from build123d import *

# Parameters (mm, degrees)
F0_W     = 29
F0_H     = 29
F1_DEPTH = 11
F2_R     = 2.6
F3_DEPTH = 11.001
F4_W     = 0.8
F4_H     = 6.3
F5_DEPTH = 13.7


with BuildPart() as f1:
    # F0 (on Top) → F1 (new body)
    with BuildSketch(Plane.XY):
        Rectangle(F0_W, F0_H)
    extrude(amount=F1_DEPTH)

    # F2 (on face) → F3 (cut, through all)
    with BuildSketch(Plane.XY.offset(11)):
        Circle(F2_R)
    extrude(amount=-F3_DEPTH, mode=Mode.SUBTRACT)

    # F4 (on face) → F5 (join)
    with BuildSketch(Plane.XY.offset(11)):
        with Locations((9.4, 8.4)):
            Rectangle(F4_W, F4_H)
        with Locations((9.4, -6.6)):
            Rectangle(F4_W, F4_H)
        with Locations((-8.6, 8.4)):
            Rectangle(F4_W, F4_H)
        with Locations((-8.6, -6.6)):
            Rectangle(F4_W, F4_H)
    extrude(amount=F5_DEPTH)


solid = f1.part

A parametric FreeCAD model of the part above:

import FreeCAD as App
import Part
import Sketcher
from FreeCAD import Vector

doc = App.newDocument("Part")
params = doc.addObject("Spreadsheet::Sheet", "Params")
for row, (alias, value) in enumerate([
    ("sketch1_width", "29 mm"),
    ("pad1_length", "11 mm"),
    ("sketch2_diameter", "5.2 mm"),
    ("sketch3_width", "0.8 mm"),
    ("sketch3_height", "6.3 mm"),
    ("pad2_length", "13.7 mm"),
], start=1):
    params.set(f"A{row}", alias)
    params.set(f"B{row}", "=" + value)
    params.setAlias(f"B{row}", alias)

body = doc.addObject("PartDesign::Body", "Body")

# Sketch on XY plane
sketch1 = body.newObject("Sketcher::SketchObject", "Sketch")
sketch1.AttachmentSupport = (doc.getObject("XY_Plane"), [""])
sketch1.MapMode = "FlatFace"
sketch1.addGeometry([
    Part.LineSegment(Vector(-14, 14, 0), Vector(-14, -14, 0)),
    Part.LineSegment(Vector(-14, -14, 0), Vector(14, -14, 0)),
    Part.LineSegment(Vector(14, -14, 0), Vector(14, 14, 0)),
    Part.LineSegment(Vector(14, 14, 0), Vector(-14, 14, 0)),
], False)
sketch1.addConstraint([
    Sketcher.Constraint("Coincident", 0, 2, 1, 1),
    Sketcher.Constraint("Coincident", 1, 2, 2, 1),
    Sketcher.Constraint("Coincident", 2, 2, 3, 1),
    Sketcher.Constraint("Coincident", 3, 2, 0, 1),
    Sketcher.Constraint("Vertical", 0),
    Sketcher.Constraint("Horizontal", 1),
    Sketcher.Constraint("Vertical", 2),
    Sketcher.Constraint("Horizontal", 3),
    Sketcher.Constraint("Symmetric", 0, 2, 2, 2, -1, 1),
    Sketcher.Constraint("Equal", 3, 0),
    Sketcher.Constraint("DistanceX", 1, 1, 1, 2, 29.0),
])
sketch1.setExpression("Constraints[10]", "Params.sketch1_width")
pad1 = body.newObject("PartDesign::Pad", "Pad")
pad1.Profile = sketch1
pad1.setExpression("Length", "Params.pad1_length")

# Sketch on XY plane
sketch2 = body.newObject("Sketcher::SketchObject", "Sketch001")
sketch2.AttachmentSupport = (doc.getObject("XY_Plane"), [""])
sketch2.MapMode = "FlatFace"
sketch2.AttachmentOffset = App.Placement(Vector(0, 0, 11), App.Rotation())
sketch2.addGeometry(Part.Circle(Vector(0, 0, 0), Vector(0, 0, 1), 2.6), False)
sketch2.addConstraint([
    Sketcher.Constraint("Coincident", 0, 3, -1, 1),
    Sketcher.Constraint("Diameter", 0, 5.2),
])
sketch2.setExpression("Constraints[1]", "Params.sketch2_diameter")
pocket1 = body.newObject("PartDesign::Pocket", "Pocket")
pocket1.Profile = sketch2
pocket1.Type = "ThroughAll"

# Sketch on XY plane
sketch3 = body.newObject("Sketcher::SketchObject", "Sketch002")
sketch3.AttachmentSupport = (doc.getObject("XY_Plane"), [""])
sketch3.MapMode = "FlatFace"
sketch3.AttachmentOffset = App.Placement(Vector(0, 0, 11), App.Rotation())
sketch3.addGeometry([
    Part.LineSegment(Vector(9, 11.6, 0), Vector(9, 5.2, 0)),  # 0
    Part.LineSegment(Vector(9, 5.2, 0), Vector(9.8, 5.2, 0)),  # 1
    Part.LineSegment(Vector(9.8, 5.2, 0), Vector(9.8, 11.6, 0)),  # 2
    Part.LineSegment(Vector(9.8, 11.6, 0), Vector(9, 11.6, 0)),  # 3
    Part.LineSegment(Vector(9, -3.5, 0), Vector(9, -9.8, 0)),  # 4
    Part.LineSegment(Vector(9, -9.8, 0), Vector(9.8, -9.8, 0)),  # 5
    Part.LineSegment(Vector(9.8, -9.8, 0), Vector(9.8, -3.5, 0)),  # 6
    Part.LineSegment(Vector(9.8, -3.5, 0), Vector(9, -3.5, 0)),  # 7
    Part.LineSegment(Vector(-9, 11.6, 0), Vector(-9, 5.2, 0)),  # 8
    Part.LineSegment(Vector(-9, 5.2, 0), Vector(-8.2, 5.2, 0)),  # 9
    Part.LineSegment(Vector(-8.2, 5.2, 0), Vector(-8.2, 11.6, 0)),  # 10
    Part.LineSegment(Vector(-8.2, 11.6, 0), Vector(-9, 11.6, 0)),  # 11
    Part.LineSegment(Vector(-9, -3.5, 0), Vector(-9, -9.8, 0)),  # 12
    Part.LineSegment(Vector(-9, -9.8, 0), Vector(-8.2, -9.8, 0)),  # 13
    Part.LineSegment(Vector(-8.2, -9.8, 0), Vector(-8.2, -3.5, 0)),  # 14
    Part.LineSegment(Vector(-8.2, -3.5, 0), Vector(-9, -3.5, 0)),  # 15
], False)
sketch3.addConstraint([
    Sketcher.Constraint("Coincident", 0, 2, 1, 1),
    Sketcher.Constraint("Coincident", 1, 2, 2, 1),
    Sketcher.Constraint("Coincident", 2, 2, 3, 1),
    Sketcher.Constraint("Coincident", 3, 2, 0, 1),
    Sketcher.Constraint("Coincident", 4, 2, 5, 1),
    Sketcher.Constraint("Coincident", 5, 2, 6, 1),
    Sketcher.Constraint("Coincident", 6, 2, 7, 1),
    Sketcher.Constraint("Coincident", 7, 2, 4, 1),
    Sketcher.Constraint("Coincident", 8, 2, 9, 1),
    Sketcher.Constraint("Coincident", 9, 2, 10, 1),
    Sketcher.Constraint("Coincident", 10, 2, 11, 1),
    Sketcher.Constraint("Coincident", 11, 2, 8, 1),
    Sketcher.Constraint("Coincident", 12, 2, 13, 1),
    Sketcher.Constraint("Coincident", 13, 2, 14, 1),
    Sketcher.Constraint("Coincident", 14, 2, 15, 1),
    Sketcher.Constraint("Coincident", 15, 2, 12, 1),
    Sketcher.Constraint("Vertical", 0),
    Sketcher.Constraint("Horizontal", 1),
    Sketcher.Constraint("Vertical", 2),
    Sketcher.Constraint("Horizontal", 3),
    Sketcher.Constraint("Vertical", 4),
    Sketcher.Constraint("Horizontal", 5),
    Sketcher.Constraint("Vertical", 6),
    Sketcher.Constraint("Horizontal", 7),
    Sketcher.Constraint("Vertical", 8),
    Sketcher.Constraint("Horizontal", 9),
    Sketcher.Constraint("Vertical", 10),
    Sketcher.Constraint("Horizontal", 11),
    Sketcher.Constraint("Vertical", 12),
    Sketcher.Constraint("Horizontal", 13),
    Sketcher.Constraint("Vertical", 14),
    Sketcher.Constraint("Horizontal", 15),
    Sketcher.Constraint("Symmetric", 0, 2, 8, 2, -2),
    Sketcher.Constraint("Symmetric", 4, 2, 12, 2, -2),
    Sketcher.Constraint("Horizontal", 3, 2, 10, 2),
    Sketcher.Constraint("Horizontal", 7, 2, 14, 2),
    Sketcher.Constraint("Vertical", 3, 2, 4, 2),
    Sketcher.Constraint("Vertical", 2, 2, 5, 2),
    Sketcher.Constraint("Vertical", 10, 2, 13, 2),
    Sketcher.Constraint("Equal", 7, 9),
    Sketcher.Constraint("Equal", 2, 4),
    Sketcher.Constraint("DistanceX", 1, 1, 1, 2, 0.8),
    Sketcher.Constraint("DistanceY", 0, 2, 0, 1, 6.3),
    Sketcher.Constraint("DistanceX", -1, 1, 0, 2, 9.0),
    Sketcher.Constraint("DistanceY", 4, 2, 0, 2, 15.0),
    Sketcher.Constraint("DistanceY", -1, 1, 0, 2, 5.25),
])
sketch3.setExpression("Constraints[41]", "Params.sketch3_width")
sketch3.setExpression("Constraints[42]", "Params.sketch3_height")
pad2 = body.newObject("PartDesign::Pad", "Pad001")
pad2.Profile = sketch3
pad2.setExpression("Length", "Params.pad2_length")

doc.recompute()
